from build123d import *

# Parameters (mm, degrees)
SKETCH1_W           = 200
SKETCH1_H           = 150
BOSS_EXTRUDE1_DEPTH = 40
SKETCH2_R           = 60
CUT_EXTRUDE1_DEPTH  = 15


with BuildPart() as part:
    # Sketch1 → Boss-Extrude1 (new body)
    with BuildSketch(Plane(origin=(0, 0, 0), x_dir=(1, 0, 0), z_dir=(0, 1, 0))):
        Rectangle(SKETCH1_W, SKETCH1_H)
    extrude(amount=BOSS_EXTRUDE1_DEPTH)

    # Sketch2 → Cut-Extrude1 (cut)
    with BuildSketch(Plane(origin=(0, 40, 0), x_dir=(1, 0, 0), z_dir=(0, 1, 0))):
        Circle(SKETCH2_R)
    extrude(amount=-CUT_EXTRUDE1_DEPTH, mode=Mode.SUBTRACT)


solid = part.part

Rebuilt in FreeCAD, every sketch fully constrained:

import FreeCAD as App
import Part
import Sketcher

V = App.Vector


def add_polygon(sketch, points):
    """Adds a closed chain of lines whose ends are joined by coincident constraints."""
    first, n = sketch.GeometryCount, len(points)
    for a, b in zip(points, points[1:] + points[:1]):
        sketch.addGeometry(Part.LineSegment(App.Vector(*a, 0), App.Vector(*b, 0)), False)
    for i in range(n):
        sketch.addConstraint(Sketcher.Constraint("Coincident", first + i, 2, first + (i + 1) % n, 1))

doc = App.newDocument("Part")
params = doc.addObject("Spreadsheet::Sheet", "Params")
for row, (alias, value) in enumerate([
    ("sketch1_width", "200 mm"),
    ("sketch1_height", "150 mm"),
    ("pad1_length", "40 mm"),
    ("sketch2_diameter", "120 mm"),
    ("pocket1_length", "15 mm"),
], start=1):
    params.set(f"A{row}", alias)
    params.set(f"B{row}", "=" + value)
    params.setAlias(f"B{row}", alias)

body = doc.addObject("PartDesign::Body", "Body")

# Sketch on XZ plane
sketch1 = doc.addObject("Sketcher::SketchObject", "Sketch")
body.addObject(sketch1)
sketch1.AttachmentSupport = (doc.XZ_Plane, [""])
sketch1.MapMode = "FlatFace"
add_polygon(sketch1, [(-100, -75), (-100, 75), (100, 75), (100, -75)])  # lines 0-3
sketch1.addConstraint(Sketcher.Constraint("Vertical", 0))
sketch1.addConstraint(Sketcher.Constraint("Horizontal", 1))
sketch1.addConstraint(Sketcher.Constraint("Vertical", 2))
sketch1.addConstraint(Sketcher.Constraint("Horizontal", 3))
sketch1.addConstraint(Sketcher.Constraint("Symmetric", 0, 2, 2, 2, -1, 1))
sketch1.addConstraint(Sketcher.Constraint("DistanceX", 1, 1, 1, 2, 200.0))
sketch1.addConstraint(Sketcher.Constraint("DistanceY", 0, 1, 0, 2, 150.0))
sketch1.setExpression("Constraints[9]", "Params.sketch1_width")
sketch1.setExpression("Constraints[10]", "Params.sketch1_height")
pad1 = doc.addObject("PartDesign::Pad", "Pad")
body.addObject(pad1)
pad1.Profile = sketch1
pad1.setExpression("Length", "Params.pad1_length")
pad1.Reversed = True

# Sketch on XZ plane
sketch2 = doc.addObject("Sketcher::SketchObject", "Sketch001")
body.addObject(sketch2)
sketch2.AttachmentSupport = (doc.XZ_Plane, [""])
sketch2.MapMode = "FlatFace"
sketch2.AttachmentOffset = App.Placement(V(0, 0, -40), App.Rotation())
sketch2.addGeometry(Part.Circle(V(0, 0, 0), V(0, 0, 1), 60), False)
sketch2.addConstraint(Sketcher.Constraint("Coincident", 0, 3, -1, 1))
sketch2.addConstraint(Sketcher.Constraint("Diameter", 0, 120.0))
sketch2.setExpression("Constraints[1]", "Params.sketch2_diameter")
pocket1 = doc.addObject("PartDesign::Pocket", "Pocket")
body.addObject(pocket1)
pocket1.Profile = sketch2
pocket1.setExpression("Length", "Params.pocket1_length")
pocket1.Reversed = True

doc.recompute()
